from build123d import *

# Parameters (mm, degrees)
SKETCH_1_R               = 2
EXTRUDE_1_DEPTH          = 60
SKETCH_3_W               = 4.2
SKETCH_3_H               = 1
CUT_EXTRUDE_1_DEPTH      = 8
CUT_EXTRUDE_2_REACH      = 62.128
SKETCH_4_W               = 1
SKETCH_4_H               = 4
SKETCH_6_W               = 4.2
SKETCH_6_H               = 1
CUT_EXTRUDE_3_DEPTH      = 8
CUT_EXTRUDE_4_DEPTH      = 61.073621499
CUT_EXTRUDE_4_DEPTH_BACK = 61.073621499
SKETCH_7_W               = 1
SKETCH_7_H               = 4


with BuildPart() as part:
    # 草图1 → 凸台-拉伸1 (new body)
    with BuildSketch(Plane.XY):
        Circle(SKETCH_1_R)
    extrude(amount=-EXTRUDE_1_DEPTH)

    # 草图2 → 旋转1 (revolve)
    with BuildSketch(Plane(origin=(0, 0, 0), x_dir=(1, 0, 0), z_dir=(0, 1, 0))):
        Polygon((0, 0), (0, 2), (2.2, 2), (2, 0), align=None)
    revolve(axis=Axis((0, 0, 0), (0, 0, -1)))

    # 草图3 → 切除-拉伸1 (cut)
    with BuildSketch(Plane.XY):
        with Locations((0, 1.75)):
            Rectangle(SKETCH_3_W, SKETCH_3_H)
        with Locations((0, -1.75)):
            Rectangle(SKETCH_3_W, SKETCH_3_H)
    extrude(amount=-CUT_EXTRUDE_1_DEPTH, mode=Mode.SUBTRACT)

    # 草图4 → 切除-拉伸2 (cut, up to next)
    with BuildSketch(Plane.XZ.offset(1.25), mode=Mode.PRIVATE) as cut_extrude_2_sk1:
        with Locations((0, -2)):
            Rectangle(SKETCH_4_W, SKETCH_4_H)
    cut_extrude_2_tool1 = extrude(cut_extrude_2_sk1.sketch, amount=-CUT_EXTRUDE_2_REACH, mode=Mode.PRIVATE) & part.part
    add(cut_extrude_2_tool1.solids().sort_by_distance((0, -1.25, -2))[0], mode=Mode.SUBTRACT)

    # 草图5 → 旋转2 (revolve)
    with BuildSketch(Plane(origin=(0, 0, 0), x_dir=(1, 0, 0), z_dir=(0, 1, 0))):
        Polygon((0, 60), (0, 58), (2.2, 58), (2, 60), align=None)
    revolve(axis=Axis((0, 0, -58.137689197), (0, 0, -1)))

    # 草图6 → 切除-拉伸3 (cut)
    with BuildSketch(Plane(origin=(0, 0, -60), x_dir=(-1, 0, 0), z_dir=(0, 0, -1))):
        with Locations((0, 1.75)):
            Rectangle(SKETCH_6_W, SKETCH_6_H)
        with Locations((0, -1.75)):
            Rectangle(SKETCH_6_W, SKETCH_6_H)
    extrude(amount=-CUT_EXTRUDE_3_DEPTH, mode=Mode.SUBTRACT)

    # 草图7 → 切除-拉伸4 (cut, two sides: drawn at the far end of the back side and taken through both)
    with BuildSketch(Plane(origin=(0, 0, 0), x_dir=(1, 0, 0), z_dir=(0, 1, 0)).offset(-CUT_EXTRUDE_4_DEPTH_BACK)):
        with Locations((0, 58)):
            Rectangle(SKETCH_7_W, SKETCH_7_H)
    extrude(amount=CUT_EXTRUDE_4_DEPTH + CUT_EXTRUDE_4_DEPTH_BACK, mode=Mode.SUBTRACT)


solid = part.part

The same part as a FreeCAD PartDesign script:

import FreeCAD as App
import Part
import Sketcher
from FreeCAD import Vector
Q = App.Units.Quantity

doc = App.newDocument("Part")
body = doc.addObject("PartDesign::Body", "Body")

# Sketch on XY plane
sketch1 = body.newObject("Sketcher::SketchObject", "Sketch")
sketch1.AttachmentSupport = (doc.getObject("XY_Plane"), [""])
sketch1.MapMode = "FlatFace"
sketch1.addGeometry(Part.Circle(Vector(0, 0, 0), Vector(0, 0, 1), 2), False)
sketch1.addConstraint(Sketcher.Constraint("Coincident", 0, 3, -1, 1))
sketch1.addConstraint(Sketcher.Constraint("Diameter", 0, Q("4 mm")))
pad1 = body.newObject("PartDesign::Pad", "Pad")
pad1.Profile = sketch1
pad1.Length = 60
pad1.Reversed = True

# Sketch on XZ plane
sketch2 = body.newObject("Sketcher::SketchObject", "Sketch001")
sketch2.AttachmentSupport = (doc.getObject("XZ_Plane"), [""])
sketch2.MapMode = "FlatFace"
sketch2.addGeometry(Part.LineSegment(Vector(0, -2, 0), Vector(0, 0, 0)), False)
sketch2.addGeometry(Part.LineSegment(Vector(0, 0, 0), Vector(2, 0, 0)), False)
sketch2.addGeometry(Part.LineSegment(Vector(2, 0, 0), Vector(2.2, -2, 0)), False)
sketch2.addGeometry(Part.LineSegment(Vector(2.2, -2, 0), Vector(0, -2, 0)), False)
sketch2.addConstraint(Sketcher.Constraint("Coincident", 0, 2, 1, 1))
sketch2.addConstraint(Sketcher.Constraint("Coincident", 1, 2, 2, 1))
sketch2.addConstraint(Sketcher.Constraint("Coincident", 2, 2, 3, 1))
sketch2.addConstraint(Sketcher.Constraint("Coincident", 3, 2, 0, 1))
sketch2.addConstraint(Sketcher.Constraint("Vertical", 0))
sketch2.addConstraint(Sketcher.Constraint("Horizontal", 1))
sketch2.addConstraint(Sketcher.Constraint("Horizontal", 3))
sketch2.addConstraint(Sketcher.Constraint("Coincident", 0, 2, -1, 1))
sketch2.addConstraint(Sketcher.Constraint("Equal", 1, 0))
sketch2.addConstraint(Sketcher.Constraint("DistanceX", 1, 1, 1, 2, Q("2 mm")))
sketch2.addConstraint(Sketcher.Constraint("DistanceX", 3, 2, 3, 1, Q("2.2 mm")))
revolution = body.newObject("PartDesign::Revolution", "Revolution")
revolution.Profile = sketch2
revolution.ReferenceAxis = (sketch2, ["V_Axis"])
revolution.Angle = 360

# Sketch on XY plane
sketch3 = body.newObject("Sketcher::SketchObject", "Sketch002")
sketch3.AttachmentSupport = (doc.getObject("XY_Plane"), [""])
sketch3.MapMode = "FlatFace"
sketch3.addGeometry(Part.LineSegment(Vector(-2.1, 2.2, 0), Vector(-2.1, 1.2, 0)), False)
sketch3.addGeometry(Part.LineSegment(Vector(-2.1, 1.2, 0), Vector(2.1, 1.2, 0)), False)
sketch3.addGeometry(Part.LineSegment(Vector(2.1, 1.2, 0), Vector(2.1, 2.2, 0)), False)
sketch3.addGeometry(Part.LineSegment(Vector(2.1, 2.2, 0), Vector(-2.1, 2.2, 0)), False)
sketch3.addGeometry(Part.LineSegment(Vector(-2.1, -1.2, 0), Vector(-2.1, -2.2, 0)), False)
sketch3.addGeometry(Part.LineSegment(Vector(-2.1, -2.2, 0), Vector(2.1, -2.2, 0)), False)
sketch3.addGeometry(Part.LineSegment(Vector(2.1, -2.2, 0), Vector(2.1, -1.2, 0)), False)
sketch3.addGeometry(Part.LineSegment(Vector(2.1, -1.2, 0), Vector(-2.1, -1.2, 0)), False)
sketch3.addConstraint(Sketcher.Constraint("Coincident", 0, 2, 1, 1))
sketch3.addConstraint(Sketcher.Constraint("Coincident", 1, 2, 2, 1))
sketch3.addConstraint(Sketcher.Constraint("Coincident", 2, 2, 3, 1))
sketch3.addConstraint(Sketcher.Constraint("Coincident", 3, 2, 0, 1))
sketch3.addConstraint(Sketcher.Constraint("Coincident", 4, 2, 5, 1))
sketch3.addConstraint(Sketcher.Constraint("Coincident", 5, 2, 6, 1))
sketch3.addConstraint(Sketcher.Constraint("Coincident", 6, 2, 7, 1))
sketch3.addConstraint(Sketcher.Constraint("Coincident", 7, 2, 4, 1))
sketch3.addConstraint(Sketcher.Constraint("Vertical", 0))
sketch3.addConstraint(Sketcher.Constraint("Horizontal", 1))
sketch3.addConstraint(Sketcher.Constraint("Vertical", 2))
sketch3.addConstraint(Sketcher.Constraint("Horizontal", 3))
sketch3.addConstraint(Sketcher.Constraint("Vertical", 4))
sketch3.addConstraint(Sketcher.Constraint("Horizontal", 5))
sketch3.addConstraint(Sketcher.Constraint("Vertical", 6))
sketch3.addConstraint(Sketcher.Constraint("Horizontal", 7))
sketch3.addConstraint(Sketcher.Constraint("Symmetric", 2, 2, 4, 2, -1, 1))
sketch3.addConstraint(Sketcher.Constraint("Symmetric", 0, 2, 6, 2, -1, 1))
sketch3.addConstraint(Sketcher.Constraint("Vertical", 3, 2, 4, 2))
sketch3.addConstraint(Sketcher.Constraint("DistanceY", 0, 2, 0, 1, Q("1 mm")))
sketch3.addConstraint(Sketcher.Constraint("DistanceX", 1, 1, 1, 2, Q("4.2 mm")))
sketch3.addConstraint(Sketcher.Constraint("DistanceY", 4, 2, 0, 2, Q("3.5 mm")))
pocket1 = body.newObject("PartDesign::Pocket", "Pocket")
pocket1.Profile = sketch3
pocket1.Length = 8

# Sketch on XZ plane
sketch4 = body.newObject("Sketcher::SketchObject", "Sketch003")
sketch4.AttachmentSupport = (doc.getObject("XZ_Plane"), [""])
sketch4.MapMode = "FlatFace"
sketch4.AttachmentOffset = App.Placement(Vector(0, 0, 1.25), App.Rotation())
sketch4.addGeometry(Part.LineSegment(Vector(-0.5, 0, 0), Vector(-0.5, -4, 0)), False)
sketch4.addGeometry(Part.LineSegment(Vector(-0.5, -4, 0), Vector(0.5, -4, 0)), False)
sketch4.addGeometry(Part.LineSegment(Vector(0.5, -4, 0), Vector(0.5, 0, 0)), False)
sketch4.addGeometry(Part.LineSegment(Vector(0.5, 0, 0), Vector(-0.5, 0, 0)), False)
sketch4.addConstraint(Sketcher.Constraint("Coincident", 0, 2, 1, 1))
sketch4.addConstraint(Sketcher.Constraint("Coincident", 1, 2, 2, 1))
sketch4.addConstraint(Sketcher.Constraint("Coincident", 2, 2, 3, 1))
sketch4.addConstraint(Sketcher.Constraint("Coincident", 3, 2, 0, 1))
sketch4.addConstraint(Sketcher.Constraint("Vertical", 0))
sketch4.addConstraint(Sketcher.Constraint("Horizontal", 1))
sketch4.addConstraint(Sketcher.Constraint("Vertical", 2))
sketch4.addConstraint(Sketcher.Constraint("Horizontal", 3))
sketch4.addConstraint(Sketcher.Constraint("Symmetric", 2, 2, 3, 2, -1, 1))
sketch4.addConstraint(Sketcher.Constraint("DistanceX", 1, 1, 1, 2, Q("1 mm")))
sketch4.addConstraint(Sketcher.Constraint("DistanceY", 0, 2, 0, 1, Q("4 mm")))
pocket2 = body.newObject("PartDesign::Pocket", "Pocket001")
pocket2.Profile = sketch4
pocket2.Type = "UpToFirst"

# Sketch on XZ plane
sketch5 = body.newObject("Sketcher::SketchObject", "Sketch004")
sketch5.AttachmentSupport = (doc.getObject("XZ_Plane"), [""])
sketch5.MapMode = "FlatFace"
sketch5.addGeometry(Part.LineSegment(Vector(0, -60, 0), Vector(0, -58, 0)), False)
sketch5.addGeometry(Part.LineSegment(Vector(0, -58, 0), Vector(2.2, -58, 0)), False)
sketch5.addGeometry(Part.LineSegment(Vector(2.2, -58, 0), Vector(2, -60, 0)), False)
sketch5.addGeometry(Part.LineSegment(Vector(2, -60, 0), Vector(0, -60, 0)), False)
sketch5.addConstraint(Sketcher.Constraint("Coincident", 0, 2, 1, 1))
sketch5.addConstraint(Sketcher.Constraint("Coincident", 1, 2, 2, 1))
sketch5.addConstraint(Sketcher.Constraint("Coincident", 2, 2, 3, 1))
sketch5.addConstraint(Sketcher.Constraint("Coincident", 3, 2, 0, 1))
sketch5.addConstraint(Sketcher.Constraint("Vertical", 0))
sketch5.addConstraint(Sketcher.Constraint("Horizontal", 1))
sketch5.addConstraint(Sketcher.Constraint("Horizontal", 3))
sketch5.addConstraint(Sketcher.Constraint("PointOnObject", 0, 2, -2))
sketch5.addConstraint(Sketcher.Constraint("Equal", 3, 0))
sketch5.addConstraint(Sketcher.Constraint("DistanceX", 3, 2, 3, 1, Q("2 mm")))
sketch5.addConstraint(Sketcher.Constraint("DistanceX", 1, 1, 1, 2, Q("2.2 mm")))
sketch5.addConstraint(Sketcher.Constraint("DistanceY", 0, 2, -1, 1, Q("58 mm")))
revolution2 = body.newObject("PartDesign::Revolution", "Revolution001")
revolution2.Profile = sketch5
revolution2.ReferenceAxis = (sketch5, ["V_Axis"])
revolution2.Angle = 360

# Sketch on XY plane
sketch6 = body.newObject("Sketcher::SketchObject", "Sketch005")
sketch6.AttachmentSupport = (doc.getObject("XY_Plane"), [""])
sketch6.MapMode = "FlatFace"
sketch6.AttachmentOffset = App.Placement(Vector(0, 0, -60), App.Rotation())
sketch6.addGeometry(Part.LineSegment(Vector(2.1, 2.2, 0), Vector(2.1, 1.2, 0)), False)
sketch6.addGeometry(Part.LineSegment(Vector(2.1, 1.2, 0), Vector(-2.1, 1.2, 0)), False)
sketch6.addGeometry(Part.LineSegment(Vector(-2.1, 1.2, 0), Vector(-2.1, 2.2, 0)), False)
sketch6.addGeometry(Part.LineSegment(Vector(-2.1, 2.2, 0), Vector(2.1, 2.2, 0)), False)
sketch6.addGeometry(Part.LineSegment(Vector(2.1, -1.2, 0), Vector(2.1, -2.2, 0)), False)
sketch6.addGeometry(Part.LineSegment(Vector(2.1, -2.2, 0), Vector(-2.1, -2.2, 0)), False)
sketch6.addGeometry(Part.LineSegment(Vector(-2.1, -2.2, 0), Vector(-2.1, -1.2, 0)), False)
sketch6.addGeometry(Part.LineSegment(Vector(-2.1, -1.2, 0), Vector(2.1, -1.2, 0)), False)
sketch6.addConstraint(Sketcher.Constraint("Coincident", 0, 2, 1, 1))
sketch6.addConstraint(Sketcher.Constraint("Coincident", 1, 2, 2, 1))
sketch6.addConstraint(Sketcher.Constraint("Coincident", 2, 2, 3, 1))
sketch6.addConstraint(Sketcher.Constraint("Coincident", 3, 2, 0, 1))
sketch6.addConstraint(Sketcher.Constraint("Coincident", 4, 2, 5, 1))
sketch6.addConstraint(Sketcher.Constraint("Coincident", 5, 2, 6, 1))
sketch6.addConstraint(Sketcher.Constraint("Coincident", 6, 2, 7, 1))
sketch6.addConstraint(Sketcher.Constraint("Coincident", 7, 2, 4, 1))
sketch6.addConstraint(Sketcher.Constraint("Vertical", 0))
sketch6.addConstraint(Sketcher.Constraint("Horizontal", 1))
sketch6.addConstraint(Sketcher.Constraint("Vertical", 2))
sketch6.addConstraint(Sketcher.Constraint("Horizontal", 3))
sketch6.addConstraint(Sketcher.Constraint("Vertical", 4))
sketch6.addConstraint(Sketcher.Constraint("Horizontal", 5))
sketch6.addConstraint(Sketcher.Constraint("Vertical", 6))
sketch6.addConstraint(Sketcher.Constraint("Horizontal", 7))
sketch6.addConstraint(Sketcher.Constraint("Symmetric", 2, 2, 4, 2, -1, 1))
sketch6.addConstraint(Sketcher.Constraint("Symmetric", 0, 2, 6, 2, -1, 1))
sketch6.addConstraint(Sketcher.Constraint("Vertical", 3, 2, 4, 2))
sketch6.addConstraint(Sketcher.Constraint("DistanceY", 0, 2, 0, 1, Q("1 mm")))
sketch6.addConstraint(Sketcher.Constraint("DistanceX", 1, 2, 1, 1, Q("4.2 mm")))
sketch6.addConstraint(Sketcher.Constraint("DistanceY", 4, 2, 0, 2, Q("3.5 mm")))
pocket3 = body.newObject("PartDesign::Pocket", "Pocket002")
pocket3.Profile = sketch6
pocket3.Length = 8
pocket3.Reversed = True

# Sketch on XZ plane
sketch7 = body.newObject("Sketcher::SketchObject", "Sketch006")
sketch7.AttachmentSupport = (doc.getObject("XZ_Plane"), [""])
sketch7.MapMode = "FlatFace"
sketch7.addGeometry(Part.LineSegment(Vector(-0.5, -60, 0), Vector(-0.5, -56, 0)), False)
sketch7.addGeometry(Part.LineSegment(Vector(-0.5, -56, 0), Vector(0.5, -56, 0)), False)
sketch7.addGeometry(Part.LineSegment(Vector(0.5, -56, 0), Vector(0.5, -60, 0)), False)
sketch7.addGeometry(Part.LineSegment(Vector(0.5, -60, 0), Vector(-0.5, -60, 0)), False)
sketch7.addConstraint(Sketcher.Constraint("Coincident", 0, 2, 1, 1))
sketch7.addConstraint(Sketcher.Constraint("Coincident", 1, 2, 2, 1))
sketch7.addConstraint(Sketcher.Constraint("Coincident", 2, 2, 3, 1))
sketch7.addConstraint(Sketcher.Constraint("Coincident", 3, 2, 0, 1))
sketch7.addConstraint(Sketcher.Constraint("Vertical", 0))
sketch7.addConstraint(Sketcher.Constraint("Horizontal", 1))
sketch7.addConstraint(Sketcher.Constraint("Vertical", 2))
sketch7.addConstraint(Sketcher.Constraint("Horizontal", 3))
sketch7.addConstraint(Sketcher.Constraint("DistanceX", 1, 1, 1, 2, Q("1 mm")))
sketch7.addConstraint(Sketcher.Constraint("DistanceY", 0, 1, 0, 2, Q("4 mm")))
sketch7.addConstraint(Sketcher.Constraint("DistanceY", 0, 2, -1, 1, Q("56 mm")))
sketch7.addConstraint(Sketcher.Constraint("DistanceX", 0, 2, -1, 1, Q("0.5 mm")))
pocket4 = body.newObject("PartDesign::Pocket", "Pocket003")
pocket4.Profile = sketch7
pocket4.Type = "ThroughAll"
pocket4.Midplane = True

doc.recompute()
